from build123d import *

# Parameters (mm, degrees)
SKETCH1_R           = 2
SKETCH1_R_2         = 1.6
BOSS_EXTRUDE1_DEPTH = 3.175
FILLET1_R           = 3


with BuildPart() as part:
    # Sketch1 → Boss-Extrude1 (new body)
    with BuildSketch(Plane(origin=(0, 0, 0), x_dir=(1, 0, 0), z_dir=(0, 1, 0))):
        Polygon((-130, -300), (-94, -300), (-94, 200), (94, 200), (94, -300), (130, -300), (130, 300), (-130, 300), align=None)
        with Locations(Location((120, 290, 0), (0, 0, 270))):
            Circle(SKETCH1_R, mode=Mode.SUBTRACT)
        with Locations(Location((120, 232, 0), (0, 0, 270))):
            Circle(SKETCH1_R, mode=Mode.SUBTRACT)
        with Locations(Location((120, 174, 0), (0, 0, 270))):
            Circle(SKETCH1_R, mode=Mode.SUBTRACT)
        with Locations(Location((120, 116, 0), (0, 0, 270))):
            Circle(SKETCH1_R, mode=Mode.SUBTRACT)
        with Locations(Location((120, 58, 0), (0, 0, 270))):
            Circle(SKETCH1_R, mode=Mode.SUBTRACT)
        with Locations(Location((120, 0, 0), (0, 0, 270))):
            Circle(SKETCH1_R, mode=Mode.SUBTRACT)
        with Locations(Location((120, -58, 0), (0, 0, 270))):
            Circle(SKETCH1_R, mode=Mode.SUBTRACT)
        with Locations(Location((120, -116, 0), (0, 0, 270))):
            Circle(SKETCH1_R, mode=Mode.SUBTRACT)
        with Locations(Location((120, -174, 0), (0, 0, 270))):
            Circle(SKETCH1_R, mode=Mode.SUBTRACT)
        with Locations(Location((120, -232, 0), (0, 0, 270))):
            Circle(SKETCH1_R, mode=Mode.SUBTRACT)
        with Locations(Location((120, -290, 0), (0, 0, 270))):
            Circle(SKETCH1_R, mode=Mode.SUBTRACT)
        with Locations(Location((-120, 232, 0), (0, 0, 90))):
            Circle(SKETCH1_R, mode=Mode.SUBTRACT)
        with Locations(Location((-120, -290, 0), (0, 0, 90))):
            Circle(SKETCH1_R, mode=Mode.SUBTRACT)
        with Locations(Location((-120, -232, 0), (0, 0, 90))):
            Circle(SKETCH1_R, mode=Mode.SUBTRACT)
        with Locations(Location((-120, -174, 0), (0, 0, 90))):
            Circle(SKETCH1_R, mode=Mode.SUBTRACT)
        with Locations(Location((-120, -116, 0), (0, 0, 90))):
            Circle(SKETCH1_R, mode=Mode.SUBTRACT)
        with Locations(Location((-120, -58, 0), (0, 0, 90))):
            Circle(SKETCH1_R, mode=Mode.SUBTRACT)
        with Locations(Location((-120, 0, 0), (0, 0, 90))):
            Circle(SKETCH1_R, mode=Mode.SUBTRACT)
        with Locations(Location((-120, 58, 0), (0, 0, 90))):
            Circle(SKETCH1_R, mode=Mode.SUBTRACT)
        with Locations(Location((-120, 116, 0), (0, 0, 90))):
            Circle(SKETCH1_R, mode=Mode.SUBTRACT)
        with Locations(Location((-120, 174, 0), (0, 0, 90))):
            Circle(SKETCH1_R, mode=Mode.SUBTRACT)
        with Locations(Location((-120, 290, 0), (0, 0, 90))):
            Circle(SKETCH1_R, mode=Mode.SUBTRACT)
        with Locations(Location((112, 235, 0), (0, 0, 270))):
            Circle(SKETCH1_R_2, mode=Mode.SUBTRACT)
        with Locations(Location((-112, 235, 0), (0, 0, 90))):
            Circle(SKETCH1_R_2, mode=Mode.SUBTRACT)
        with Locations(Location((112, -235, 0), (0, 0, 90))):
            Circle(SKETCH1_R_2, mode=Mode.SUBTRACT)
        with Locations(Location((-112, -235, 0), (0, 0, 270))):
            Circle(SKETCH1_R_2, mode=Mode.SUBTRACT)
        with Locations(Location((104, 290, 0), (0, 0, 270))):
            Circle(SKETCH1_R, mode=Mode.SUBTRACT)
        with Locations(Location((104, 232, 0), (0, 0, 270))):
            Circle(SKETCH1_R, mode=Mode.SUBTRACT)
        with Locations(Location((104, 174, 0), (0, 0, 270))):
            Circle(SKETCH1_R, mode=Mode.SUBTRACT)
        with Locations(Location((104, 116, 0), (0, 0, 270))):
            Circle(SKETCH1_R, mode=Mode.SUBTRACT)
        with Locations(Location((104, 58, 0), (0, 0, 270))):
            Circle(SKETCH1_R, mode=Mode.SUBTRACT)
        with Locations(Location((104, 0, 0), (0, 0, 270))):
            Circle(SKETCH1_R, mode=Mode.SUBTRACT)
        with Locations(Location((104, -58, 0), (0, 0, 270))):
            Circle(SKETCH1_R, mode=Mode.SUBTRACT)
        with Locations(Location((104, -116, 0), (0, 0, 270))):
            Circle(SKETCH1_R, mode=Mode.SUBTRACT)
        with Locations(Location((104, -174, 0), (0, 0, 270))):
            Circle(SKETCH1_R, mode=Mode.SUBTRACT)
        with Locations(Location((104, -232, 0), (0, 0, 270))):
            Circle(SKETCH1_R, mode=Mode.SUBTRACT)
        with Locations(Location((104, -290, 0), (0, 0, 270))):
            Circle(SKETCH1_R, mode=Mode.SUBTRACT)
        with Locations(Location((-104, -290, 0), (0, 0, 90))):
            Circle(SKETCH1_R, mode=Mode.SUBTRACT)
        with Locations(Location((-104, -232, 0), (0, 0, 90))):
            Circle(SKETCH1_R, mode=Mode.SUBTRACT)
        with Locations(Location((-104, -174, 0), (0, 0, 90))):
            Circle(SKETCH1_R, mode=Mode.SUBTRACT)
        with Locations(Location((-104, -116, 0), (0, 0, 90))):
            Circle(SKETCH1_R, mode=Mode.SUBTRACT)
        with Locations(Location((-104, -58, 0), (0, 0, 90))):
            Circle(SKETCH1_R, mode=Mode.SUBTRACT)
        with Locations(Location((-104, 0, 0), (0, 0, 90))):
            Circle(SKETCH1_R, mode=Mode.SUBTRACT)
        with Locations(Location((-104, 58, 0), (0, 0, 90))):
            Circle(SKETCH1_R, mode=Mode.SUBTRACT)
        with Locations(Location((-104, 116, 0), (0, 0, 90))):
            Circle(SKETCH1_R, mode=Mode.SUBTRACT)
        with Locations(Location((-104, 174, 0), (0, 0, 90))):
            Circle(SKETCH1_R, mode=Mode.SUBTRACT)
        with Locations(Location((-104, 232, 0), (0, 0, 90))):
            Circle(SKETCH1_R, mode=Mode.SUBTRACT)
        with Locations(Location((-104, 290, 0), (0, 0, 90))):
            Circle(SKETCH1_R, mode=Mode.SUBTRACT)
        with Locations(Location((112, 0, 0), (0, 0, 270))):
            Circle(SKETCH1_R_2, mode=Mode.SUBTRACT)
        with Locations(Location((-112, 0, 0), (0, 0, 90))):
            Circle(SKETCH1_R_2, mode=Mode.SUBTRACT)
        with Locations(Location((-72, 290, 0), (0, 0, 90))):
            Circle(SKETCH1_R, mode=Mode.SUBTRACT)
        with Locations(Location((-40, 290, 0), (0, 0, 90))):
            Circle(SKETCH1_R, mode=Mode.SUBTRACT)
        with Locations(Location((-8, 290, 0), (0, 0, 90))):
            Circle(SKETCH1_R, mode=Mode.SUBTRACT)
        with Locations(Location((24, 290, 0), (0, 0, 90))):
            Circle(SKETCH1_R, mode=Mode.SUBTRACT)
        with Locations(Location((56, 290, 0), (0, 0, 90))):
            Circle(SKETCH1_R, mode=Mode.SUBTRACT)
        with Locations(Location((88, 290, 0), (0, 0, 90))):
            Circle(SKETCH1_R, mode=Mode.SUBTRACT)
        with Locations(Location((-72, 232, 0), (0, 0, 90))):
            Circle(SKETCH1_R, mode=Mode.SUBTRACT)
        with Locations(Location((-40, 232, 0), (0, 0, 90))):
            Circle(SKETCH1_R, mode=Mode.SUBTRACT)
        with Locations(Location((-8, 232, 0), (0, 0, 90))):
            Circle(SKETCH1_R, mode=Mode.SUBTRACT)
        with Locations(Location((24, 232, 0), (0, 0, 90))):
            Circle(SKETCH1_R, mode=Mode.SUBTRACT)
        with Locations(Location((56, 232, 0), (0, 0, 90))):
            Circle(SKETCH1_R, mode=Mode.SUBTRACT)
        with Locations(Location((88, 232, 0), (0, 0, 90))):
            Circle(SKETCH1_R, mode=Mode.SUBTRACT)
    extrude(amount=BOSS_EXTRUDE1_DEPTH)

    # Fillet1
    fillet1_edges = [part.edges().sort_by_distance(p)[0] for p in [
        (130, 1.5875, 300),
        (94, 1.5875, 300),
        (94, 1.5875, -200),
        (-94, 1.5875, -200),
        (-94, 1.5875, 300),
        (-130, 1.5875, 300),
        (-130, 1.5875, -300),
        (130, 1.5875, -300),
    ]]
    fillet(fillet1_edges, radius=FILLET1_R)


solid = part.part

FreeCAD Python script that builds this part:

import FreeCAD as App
import Part
import Sketcher

V = App.Vector


def edges_at(feature, points):
    """Names of the edges that pass closest to the given points."""
    edges = feature.Shape.Edges
    near = lambda p: min(range(len(edges)), key=lambda i: edges[i].distToShape(Part.Vertex(*p))[0])
    return sorted({f"Edge{near(p) + 1}" for p in points})


def add_polygon(sketch, points):
    """Adds a closed chain of lines whose ends are joined by coincident constraints."""
    first, n = sketch.GeometryCount, len(points)
    for a, b in zip(points, points[1:] + points[:1]):
        sketch.addGeometry(Part.LineSegment(App.Vector(*a, 0), App.Vector(*b, 0)), False)
    for i in range(n):
        sketch.addConstraint(Sketcher.Constraint("Coincident", first + i, 2, first + (i + 1) % n, 1))

doc = App.newDocument("Part")
body = doc.addObject("PartDesign::Body", "Body")

# Sketch on XZ plane
sketch1 = body.newObject("Sketcher::SketchObject", "Sketch")
sketch1.AttachmentSupport = (doc.getObject("XZ_Plane"), [""])
sketch1.MapMode = "FlatFace"
add_polygon(sketch1, [(-130, 300), (-94, 300), (-94, -200), (94, -200), (94, 300), (130, 300), (130, -300), (-130, -300)])  # lines 0-7
sketch1.addGeometry(Part.Circle(V(-120, 290, 0), V(0, 0, 1), 2), False)  # 8
sketch1.addGeometry(Part.Circle(V(-104, 290, 0), V(0, 0, 1), 2), False)  # 9
sketch1.addGeometry(Part.Circle(V(-120, 232, 0), V(0, 0, 1), 2), False)  # 10
sketch1.addGeometry(Part.Circle(V(-112, 235, 0), V(0, 0, 1), 1.6), False)  # 11
sketch1.addGeometry(Part.Circle(V(-104, 232, 0), V(0, 0, 1), 2), False)  # 12
sketch1.addGeometry(Part.Circle(V(-120, 174, 0), V(0, 0, 1), 2), False)  # 13
sketch1.addGeometry(Part.Circle(V(-104, 174, 0), V(0, 0, 1), 2), False)  # 14
sketch1.addGeometry(Part.Circle(V(-120, 116, 0), V(0, 0, 1), 2), False)  # 15
sketch1.addGeometry(Part.Circle(V(-104, 116, 0), V(0, 0, 1), 2), False)  # 16
sketch1.addGeometry(Part.Circle(V(-120, 58, 0), V(0, 0, 1), 2), False)  # 17
sketch1.addGeometry(Part.Circle(V(-104, 58, 0), V(0, 0, 1), 2), False)  # 18
sketch1.addGeometry(Part.Circle(V(104, 290, 0), V(0, 0, 1), 2), False)  # 19
sketch1.addGeometry(Part.Circle(V(120, 290, 0), V(0, 0, 1), 2), False)  # 20
sketch1.addGeometry(Part.Circle(V(104, 232, 0), V(0, 0, 1), 2), False)  # 21
sketch1.addGeometry(Part.Circle(V(112, 235, 0), V(0, 0, 1), 1.6), False)  # 22
sketch1.addGeometry(Part.Circle(V(120, 232, 0), V(0, 0, 1), 2), False)  # 23
sketch1.addGeometry(Part.Circle(V(104, 174, 0), V(0, 0, 1), 2), False)  # 24
sketch1.addGeometry(Part.Circle(V(120, 174, 0), V(0, 0, 1), 2), False)  # 25
sketch1.addGeometry(Part.Circle(V(104, 116, 0), V(0, 0, 1), 2), False)  # 26
sketch1.addGeometry(Part.Circle(V(120, 116, 0), V(0, 0, 1), 2), False)  # 27
sketch1.addGeometry(Part.Circle(V(104, 58, 0), V(0, 0, 1), 2), False)  # 28
sketch1.addGeometry(Part.Circle(V(120, 58, 0), V(0, 0, 1), 2), False)  # 29
sketch1.addGeometry(Part.Circle(V(-120, 0, 0), V(0, 0, 1), 2), False)  # 30
sketch1.addGeometry(Part.Circle(V(-112, 0, 0), V(0, 0, 1), 1.6), False)  # 31
sketch1.addGeometry(Part.Circle(V(-104, 0, 0), V(0, 0, 1), 2), False)  # 32
sketch1.addGeometry(Part.Circle(V(-120, -58, 0), V(0, 0, 1), 2), False)  # 33
sketch1.addGeometry(Part.Circle(V(-104, -58, 0), V(0, 0, 1), 2), False)  # 34
sketch1.addGeometry(Part.Circle(V(-120, -116, 0), V(0, 0, 1), 2), False)  # 35
sketch1.addGeometry(Part.Circle(V(-104, -116, 0), V(0, 0, 1), 2), False)  # 36
sketch1.addGeometry(Part.Circle(V(-120, -174, 0), V(0, 0, 1), 2), False)  # 37
sketch1.addGeometry(Part.Circle(V(-104, -174, 0), V(0, 0, 1), 2), False)  # 38
sketch1.addGeometry(Part.Circle(V(-120, -232, 0), V(0, 0, 1), 2), False)  # 39
sketch1.addGeometry(Part.Circle(V(-112, -235, 0), V(0, 0, 1), 1.6), False)  # 40
sketch1.addGeometry(Part.Circle(V(-104, -232, 0), V(0, 0, 1), 2), False)  # 41
sketch1.addGeometry(Part.Circle(V(-120, -290, 0), V(0, 0, 1), 2), False)  # 42
sketch1.addGeometry(Part.Circle(V(-104, -290, 0), V(0, 0, 1), 2), False)  # 43
sketch1.addGeometry(Part.Circle(V(-72, -232, 0), V(0, 0, 1), 2), False)  # 44
sketch1.addGeometry(Part.Circle(V(-72, -290, 0), V(0, 0, 1), 2), False)  # 45
sketch1.addGeometry(Part.Circle(V(-40, -232, 0), V(0, 0, 1), 2), False)  # 46
sketch1.addGeometry(Part.Circle(V(-40, -290, 0), V(0, 0, 1), 2), False)  # 47
sketch1.addGeometry(Part.Circle(V(-8, -232, 0), V(0, 0, 1), 2), False)  # 48
sketch1.addGeometry(Part.Circle(V(-8, -290, 0), V(0, 0, 1), 2), False)  # 49
sketch1.addGeometry(Part.Circle(V(104, 0, 0), V(0, 0, 1), 2), False)  # 50
sketch1.addGeometry(Part.Circle(V(112, 0, 0), V(0, 0, 1), 1.6), False)  # 51
sketch1.addGeometry(Part.Circle(V(120, 0, 0), V(0, 0, 1), 2), False)  # 52
sketch1.addGeometry(Part.Circle(V(104, -58, 0), V(0, 0, 1), 2), False)  # 53
sketch1.addGeometry(Part.Circle(V(120, -58, 0), V(0, 0, 1), 2), False)  # 54
sketch1.addGeometry(Part.Circle(V(104, -116, 0), V(0, 0, 1), 2), False)  # 55
sketch1.addGeometry(Part.Circle(V(120, -116, 0), V(0, 0, 1), 2), False)  # 56
sketch1.addGeometry(Part.Circle(V(24, -232, 0), V(0, 0, 1), 2), False)  # 57
sketch1.addGeometry(Part.Circle(V(24, -290, 0), V(0, 0, 1), 2), False)  # 58
sketch1.addGeometry(Part.Circle(V(56, -232, 0), V(0, 0, 1), 2), False)  # 59
sketch1.addGeometry(Part.Circle(V(56, -290, 0), V(0, 0, 1), 2), False)  # 60
sketch1.addGeometry(Part.Circle(V(104, -174, 0), V(0, 0, 1), 2), False)  # 61
sketch1.addGeometry(Part.Circle(V(120, -174, 0), V(0, 0, 1), 2), False)  # 62
sketch1.addGeometry(Part.Circle(V(88, -232, 0), V(0, 0, 1), 2), False)  # 63
sketch1.addGeometry(Part.Circle(V(88, -290, 0), V(0, 0, 1), 2), False)  # 64
sketch1.addGeometry(Part.Circle(V(104, -232, 0), V(0, 0, 1), 2), False)  # 65
sketch1.addGeometry(Part.Circle(V(112, -235, 0), V(0, 0, 1), 1.6), False)  # 66
sketch1.addGeometry(Part.Circle(V(120, -232, 0), V(0, 0, 1), 2), False)  # 67
sketch1.addGeometry(Part.Circle(V(104, -290, 0), V(0, 0, 1), 2), False)  # 68
sketch1.addGeometry(Part.Circle(V(120, -290, 0), V(0, 0, 1), 2), False)  # 69
sketch1.addConstraint([
    Sketcher.Constraint("Horizontal", 0),
    Sketcher.Constraint("Vertical", 1),
    Sketcher.Constraint("Horizontal", 2),
    Sketcher.Constraint("Vertical", 3),
    Sketcher.Constraint("Horizontal", 4),
    Sketcher.Constraint("Vertical", 5),
    Sketcher.Constraint("Horizontal", 6),
    Sketcher.Constraint("Vertical", 7),
    Sketcher.Constraint("Equal", 8, 9),
    Sketcher.Constraint("Equal", 9, 10),
    Sketcher.Constraint("Equal", 10, 12),
    Sketcher.Constraint("Equal", 12, 13),
    Sketcher.Constraint("Equal", 13, 14),
    Sketcher.Constraint("Equal", 14, 15),
    Sketcher.Constraint("Equal", 15, 16),
    Sketcher.Constraint("Equal", 16, 17),
    Sketcher.Constraint("Equal", 17, 18),
    Sketcher.Constraint("Equal", 18, 19),
    Sketcher.Constraint("Equal", 19, 20),
    Sketcher.Constraint("Equal", 20, 21),
    Sketcher.Constraint("Equal", 11, 22),
    Sketcher.Constraint("Equal", 21, 23),
    Sketcher.Constraint("Equal", 23, 24),
    Sketcher.Constraint("Equal", 24, 25),
    Sketcher.Constraint("Equal", 25, 26),
    Sketcher.Constraint("Equal", 26, 27),
    Sketcher.Constraint("Equal", 27, 28),
    Sketcher.Constraint("Equal", 28, 29),
    Sketcher.Constraint("Equal", 29, 30),
    Sketcher.Constraint("Equal", 22, 31),
    Sketcher.Constraint("Equal", 30, 32),
    Sketcher.Constraint("Equal", 32, 33),
    Sketcher.Constraint("Equal", 33, 34),
    Sketcher.Constraint("Equal", 34, 35),
    Sketcher.Constraint("Equal", 35, 36),
    Sketcher.Constraint("Equal", 36, 37),
    Sketcher.Constraint("Equal", 37, 38),
    Sketcher.Constraint("Equal", 38, 39),
    Sketcher.Constraint("Equal", 31, 40),
    Sketcher.Constraint("Equal", 39, 41),
    Sketcher.Constraint("Equal", 41, 42),
    Sketcher.Constraint("Equal", 42, 43),
    Sketcher.Constraint("Equal", 43, 44),
    Sketcher.Constraint("Equal", 44, 45),
    Sketcher.Constraint("Equal", 45, 46),
    Sketcher.Constraint("Equal", 46, 47),
    Sketcher.Constraint("Equal", 47, 48),
    Sketcher.Constraint("Equal", 48, 49),
    Sketcher.Constraint("Equal", 49, 50),
    Sketcher.Constraint("Equal", 40, 51),
    Sketcher.Constraint("Equal", 50, 52),
    Sketcher.Constraint("Equal", 52, 53),
    Sketcher.Constraint("Equal", 53, 54),
    Sketcher.Constraint("Equal", 54, 55),
    Sketcher.Constraint("Equal", 55, 56),
    Sketcher.Constraint("Equal", 56, 57),
    Sketcher.Constraint("Equal", 57, 58),
    Sketcher.Constraint("Equal", 58, 59),
    Sketcher.Constraint("Equal", 59, 60),
    Sketcher.Constraint("Equal", 60, 61),
    Sketcher.Constraint("Equal", 61, 62),
    Sketcher.Constraint("Equal", 62, 63),
    Sketcher.Constraint("Equal", 63, 64),
    Sketcher.Constraint("Equal", 64, 65),
    Sketcher.Constraint("Equal", 51, 66),
    Sketcher.Constraint("Equal", 65, 67),
    Sketcher.Constraint("Equal", 67, 68),
    Sketcher.Constraint("Equal", 68, 69),
    Sketcher.Constraint("Symmetric", 29, 3, 33, 3, -1, 1),
    Sketcher.Constraint("Symmetric", 28, 3, 34, 3, -1, 1),
    Sketcher.Constraint("Symmetric", 27, 3, 35, 3, -1, 1),
    Sketcher.Constraint("Symmetric", 26, 3, 36, 3, -1, 1),
    Sketcher.Constraint("Symmetric", 25, 3, 37, 3, -1, 1),
    Sketcher.Constraint("Symmetric", 24, 3, 38, 3, -1, 1),
    Sketcher.Constraint("Symmetric", 23, 3, 39, 3, -1, 1),
    Sketcher.Constraint("Symmetric", 22, 3, 40, 3, -1, 1),
    Sketcher.Constraint("Symmetric", 21, 3, 41, 3, -1, 1),
    Sketcher.Constraint("Symmetric", 20, 3, 42, 3, -1, 1),
    Sketcher.Constraint("Symmetric", 19, 3, 43, 3, -1, 1),
    Sketcher.Constraint("Symmetric", 32, 3, 50, 3, -1, 1),
    Sketcher.Constraint("Symmetric", 31, 3, 51, 3, -1, 1),
    Sketcher.Constraint("Symmetric", 30, 3, 52, 3, -1, 1),
    Sketcher.Constraint("Symmetric", 18, 3, 53, 3, -1, 1),
    Sketcher.Constraint("Symmetric", 17, 3, 54, 3, -1, 1),
    Sketcher.Constraint("Symmetric", 16, 3, 55, 3, -1, 1),
    Sketcher.Constraint("Symmetric", 15, 3, 56, 3, -1, 1),
    Sketcher.Constraint("Symmetric", 14, 3, 61, 3, -1, 1),
    Sketcher.Constraint("Symmetric", 13, 3, 62, 3, -1, 1),
    Sketcher.Constraint("Symmetric", 12, 3, 65, 3, -1, 1),
    Sketcher.Constraint("Symmetric", 11, 3, 66, 3, -1, 1),
    Sketcher.Constraint("Symmetric", 10, 3, 67, 3, -1, 1),
    Sketcher.Constraint("Symmetric", 9, 3, 68, 3, -1, 1),
    Sketcher.Constraint("Symmetric", 8, 3, 69, 3, -1, 1),
    Sketcher.Constraint("Symmetric", 4, 2, 6, 2, -1, 1),
    Sketcher.Constraint("Symmetric", 9, 3, 19, 3, -2),
    Sketcher.Constraint("Symmetric", 8, 3, 20, 3, -2),
    Sketcher.Constraint("Symmetric", 12, 3, 21, 3, -2),
    Sketcher.Constraint("Symmetric", 11, 3, 22, 3, -2),
    Sketcher.Constraint("Symmetric", 10, 3, 23, 3, -2),
    Sketcher.Constraint("Symmetric", 14, 3, 24, 3, -2),
    Sketcher.Constraint("Symmetric", 13, 3, 25, 3, -2),
    Sketcher.Constraint("Symmetric", 16, 3, 26, 3, -2),
    Sketcher.Constraint("Symmetric", 15, 3, 27, 3, -2),
    Sketcher.Constraint("Symmetric", 18, 3, 28, 3, -2),
    Sketcher.Constraint("Symmetric", 17, 3, 29, 3, -2),
    Sketcher.Constraint("Symmetric", 0, 2, 3, 2, -2),
    Sketcher.Constraint("PointOnObject", 30, 3, -1),
    Sketcher.Constraint("PointOnObject", 31, 3, -1),
    Sketcher.Constraint("PointOnObject", 32, 3, -1),
    Sketcher.Constraint("Horizontal", 8, 3, 9, 3),
    Sketcher.Constraint("Horizontal", 10, 3, 12, 3),
    Sketcher.Constraint("Horizontal", 13, 3, 14, 3),
    Sketcher.Constraint("Horizontal", 15, 3, 16, 3),
    Sketcher.Constraint("Horizontal", 17, 3, 18, 3),
    Sketcher.Constraint("Horizontal", 41, 3, 44, 3),
    Sketcher.Constraint("Horizontal", 43, 3, 45, 3),
    Sketcher.Constraint("Horizontal", 44, 3, 46, 3),
    Sketcher.Constraint("Horizontal", 45, 3, 47, 3),
    Sketcher.Constraint("Horizontal", 46, 3, 48, 3),
    Sketcher.Constraint("Horizontal", 47, 3, 49, 3),
    Sketcher.Constraint("Horizontal", 48, 3, 57, 3),
    Sketcher.Constraint("Horizontal", 49, 3, 58, 3),
    Sketcher.Constraint("Horizontal", 57, 3, 59, 3),
    Sketcher.Constraint("Horizontal", 58, 3, 60, 3),
    Sketcher.Constraint("Horizontal", 59, 3, 63, 3),
    Sketcher.Constraint("Horizontal", 60, 3, 64, 3),
    Sketcher.Constraint("Vertical", 8, 3, 10, 3),
    Sketcher.Constraint("Vertical", 9, 3, 12, 3),
    Sketcher.Constraint("Vertical", 10, 3, 13, 3),
    Sketcher.Constraint("Vertical", 12, 3, 14, 3),
    Sketcher.Constraint("Vertical", 13, 3, 15, 3),
    Sketcher.Constraint("Vertical", 14, 3, 16, 3),
    Sketcher.Constraint("Vertical", 15, 3, 17, 3),
    Sketcher.Constraint("Vertical", 16, 3, 18, 3),
    Sketcher.Constraint("Vertical", 17, 3, 30, 3),
    Sketcher.Constraint("Vertical", 11, 3, 31, 3),
    Sketcher.Constraint("Vertical", 18, 3, 32, 3),
    Sketcher.Constraint("Vertical", 44, 3, 45, 3),
    Sketcher.Constraint("Vertical", 46, 3, 47, 3),
    Sketcher.Constraint("Vertical", 48, 3, 49, 3),
    Sketcher.Constraint("Vertical", 57, 3, 58, 3),
    Sketcher.Constraint("Vertical", 59, 3, 60, 3),
    Sketcher.Constraint("Vertical", 63, 3, 64, 3),
    Sketcher.Constraint("Diameter", 8, 4.0),
    Sketcher.Constraint("Diameter", 11, 3.2),
    Sketcher.Constraint("DistanceX", 0, 1, 0, 2, 36.0),
    Sketcher.Constraint("DistanceX", 2, 1, 2, 2, 188.0),
    Sketcher.Constraint("DistanceY", 1, 2, 1, 1, 500.0),
    Sketcher.Constraint("DistanceY", 5, 2, 5, 1, 600.0),
    Sketcher.Constraint("DistanceX", 8, 3, -1, 1, 120.0),
    Sketcher.Constraint("DistanceY", -1, 1, 8, 3, 290.0),
    Sketcher.Constraint("DistanceX", 9, 3, -1, 1, 104.0),
    Sketcher.Constraint("DistanceY", -1, 1, 10, 3, 232.0),
    Sketcher.Constraint("DistanceX", 11, 3, -1, 1, 112.0),
    Sketcher.Constraint("DistanceY", -1, 1, 11, 3, 235.0),
    Sketcher.Constraint("DistanceY", -1, 1, 13, 3, 174.0),
    Sketcher.Constraint("DistanceY", -1, 1, 15, 3, 116.0),
    Sketcher.Constraint("DistanceY", -1, 1, 17, 3, 58.0),
    Sketcher.Constraint("DistanceX", 44, 3, -1, 1, 72.0),
    Sketcher.Constraint("DistanceX", 46, 3, -1, 1, 40.0),
    Sketcher.Constraint("DistanceX", 48, 3, -1, 1, 8.0),
    Sketcher.Constraint("DistanceX", -1, 1, 57, 3, 24.0),
    Sketcher.Constraint("DistanceX", -1, 1, 59, 3, 56.0),
    Sketcher.Constraint("DistanceX", -1, 1, 63, 3, 88.0),
])
pad1 = body.newObject("PartDesign::Pad", "Pad")
pad1.Profile = sketch1
pad1.Length = 3.175
pad1.Reversed = True
doc.recompute()

fillet = body.newObject("PartDesign::Fillet", "Fillet")
fillet.Base = (pad1, edges_at(pad1, [
    (130, 1.587, 300),
    (94, 1.587, 300),
    (94, 1.587, -200),
    (-94, 1.587, -200),
    (-94, 1.587, 300),
    (-130, 1.587, 300),
    (-130, 1.587, -300),
    (130, 1.587, -300),
]))
fillet.Radius = 3

doc.recompute()
